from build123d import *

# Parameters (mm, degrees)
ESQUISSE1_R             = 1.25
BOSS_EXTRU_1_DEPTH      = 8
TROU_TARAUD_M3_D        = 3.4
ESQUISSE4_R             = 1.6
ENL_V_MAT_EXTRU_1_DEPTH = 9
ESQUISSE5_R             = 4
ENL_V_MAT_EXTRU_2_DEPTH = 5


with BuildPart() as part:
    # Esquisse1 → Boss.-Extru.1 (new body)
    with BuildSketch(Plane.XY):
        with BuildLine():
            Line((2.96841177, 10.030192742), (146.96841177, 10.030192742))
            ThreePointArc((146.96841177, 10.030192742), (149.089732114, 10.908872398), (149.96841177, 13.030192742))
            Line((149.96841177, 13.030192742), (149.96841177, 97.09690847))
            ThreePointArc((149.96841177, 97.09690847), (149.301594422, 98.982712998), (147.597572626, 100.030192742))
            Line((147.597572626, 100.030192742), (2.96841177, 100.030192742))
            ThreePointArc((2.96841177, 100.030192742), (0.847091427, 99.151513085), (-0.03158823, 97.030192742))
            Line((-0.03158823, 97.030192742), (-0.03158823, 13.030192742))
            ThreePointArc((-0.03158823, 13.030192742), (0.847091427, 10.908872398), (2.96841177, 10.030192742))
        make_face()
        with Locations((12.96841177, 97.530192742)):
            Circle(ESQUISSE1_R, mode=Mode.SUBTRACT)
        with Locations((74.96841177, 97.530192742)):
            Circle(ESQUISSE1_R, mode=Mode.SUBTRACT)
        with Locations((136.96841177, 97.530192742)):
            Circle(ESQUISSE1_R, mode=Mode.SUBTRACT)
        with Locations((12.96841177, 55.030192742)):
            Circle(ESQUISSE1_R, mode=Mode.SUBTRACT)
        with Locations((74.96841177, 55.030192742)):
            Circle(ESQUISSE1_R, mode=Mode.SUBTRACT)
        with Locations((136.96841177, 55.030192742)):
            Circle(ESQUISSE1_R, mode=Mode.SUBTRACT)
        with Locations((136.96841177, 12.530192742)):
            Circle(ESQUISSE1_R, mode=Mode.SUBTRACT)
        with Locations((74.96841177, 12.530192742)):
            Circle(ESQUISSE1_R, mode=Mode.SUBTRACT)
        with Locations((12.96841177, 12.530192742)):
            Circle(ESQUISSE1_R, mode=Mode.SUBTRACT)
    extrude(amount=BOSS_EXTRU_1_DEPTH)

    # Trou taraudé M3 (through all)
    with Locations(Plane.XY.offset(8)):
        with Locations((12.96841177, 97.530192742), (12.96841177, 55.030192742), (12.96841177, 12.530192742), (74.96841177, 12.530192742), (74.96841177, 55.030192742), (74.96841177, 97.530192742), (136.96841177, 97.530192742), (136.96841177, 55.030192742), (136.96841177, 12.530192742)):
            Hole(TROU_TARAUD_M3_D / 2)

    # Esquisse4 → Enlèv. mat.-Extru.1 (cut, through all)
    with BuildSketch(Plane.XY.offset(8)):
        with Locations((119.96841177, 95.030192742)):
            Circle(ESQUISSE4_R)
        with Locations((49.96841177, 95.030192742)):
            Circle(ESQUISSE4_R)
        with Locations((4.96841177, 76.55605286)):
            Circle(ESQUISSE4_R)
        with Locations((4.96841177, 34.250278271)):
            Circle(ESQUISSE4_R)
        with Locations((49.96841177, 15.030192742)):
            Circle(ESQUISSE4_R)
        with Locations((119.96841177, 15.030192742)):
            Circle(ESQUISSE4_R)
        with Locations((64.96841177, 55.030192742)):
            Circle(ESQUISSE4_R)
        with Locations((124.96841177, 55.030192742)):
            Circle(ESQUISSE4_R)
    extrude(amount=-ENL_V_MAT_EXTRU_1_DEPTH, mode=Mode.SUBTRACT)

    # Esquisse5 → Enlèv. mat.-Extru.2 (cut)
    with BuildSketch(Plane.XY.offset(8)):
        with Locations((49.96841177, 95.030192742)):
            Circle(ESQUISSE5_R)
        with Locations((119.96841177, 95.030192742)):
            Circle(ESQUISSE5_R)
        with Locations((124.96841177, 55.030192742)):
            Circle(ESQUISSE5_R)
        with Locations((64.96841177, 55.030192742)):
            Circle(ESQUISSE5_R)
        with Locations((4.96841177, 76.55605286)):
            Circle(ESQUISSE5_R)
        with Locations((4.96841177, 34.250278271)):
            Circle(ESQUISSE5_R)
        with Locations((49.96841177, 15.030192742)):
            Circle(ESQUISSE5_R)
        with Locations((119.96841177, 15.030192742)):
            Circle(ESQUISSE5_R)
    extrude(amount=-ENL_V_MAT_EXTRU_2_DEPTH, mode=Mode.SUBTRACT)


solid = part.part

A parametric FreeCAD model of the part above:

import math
import FreeCAD as App
import Part
import Sketcher
from FreeCAD import Vector
Q = App.Units.Quantity

doc = App.newDocument("Part")
body = doc.addObject("PartDesign::Body", "Body")

# Sketch on XY plane
sketch1 = doc.addObject("Sketcher::SketchObject", "Sketch")
body.addObject(sketch1)
sketch1.AttachmentSupport = (doc.XY_Plane, [""])
sketch1.MapMode = "FlatFace"
sketch1.addGeometry([
    Part.LineSegment(Vector(3, 10, 0), Vector(147, 10, 0)),  # 0
    Part.ArcOfCircle(Part.Circle(Vector(147, 13, 0), Vector(0, 0, 1), 3), math.radians(-90), math.radians(0)),  # 1
    Part.LineSegment(Vector(150, 13, 0), Vector(150, 97.1, 0)),  # 2
    Part.ArcOfCircle(Part.Circle(Vector(147, 97.1, 0), Vector(0, 0, 1), 3), math.radians(0), math.radians(78)),  # 3
    Part.LineSegment(Vector(147.6, 100, 0), Vector(3, 100, 0)),  # 4
    Part.ArcOfCircle(Part.Circle(Vector(3, 97, 0), Vector(0, 0, 1), 3), math.radians(90), math.radians(180)),  # 5
    Part.LineSegment(Vector(0, 97, 0), Vector(0, 13, 0)),  # 6
    Part.ArcOfCircle(Part.Circle(Vector(3, 13, 0), Vector(0, 0, 1), 3), math.radians(180), math.radians(270)),  # 7
    Part.Circle(Vector(13, 12.5, 0), Vector(0, 0, 1), 1.2),  # 8
    Part.Circle(Vector(13, 55, 0), Vector(0, 0, 1), 1.2),  # 9
    Part.Circle(Vector(75, 12.5, 0), Vector(0, 0, 1), 1.2),  # 10
    Part.Circle(Vector(137, 12.5, 0), Vector(0, 0, 1), 1.2),  # 11
    Part.Circle(Vector(75, 55, 0), Vector(0, 0, 1), 1.2),  # 12
    Part.Circle(Vector(137, 55, 0), Vector(0, 0, 1), 1.2),  # 13
    Part.Circle(Vector(13, 97.5, 0), Vector(0, 0, 1), 1.2),  # 14
    Part.Circle(Vector(75, 97.5, 0), Vector(0, 0, 1), 1.2),  # 15
    Part.Circle(Vector(137, 97.5, 0), Vector(0, 0, 1), 1.2),  # 16
], False)
sketch1.addConstraint([
    Sketcher.Constraint("Tangent", 0, 2, 1, 1),
    Sketcher.Constraint("Tangent", 1, 2, 2, 1),
    Sketcher.Constraint("Tangent", 2, 2, 3, 1),
    Sketcher.Constraint("Coincident", 3, 2, 4, 1),
    Sketcher.Constraint("Tangent", 4, 2, 5, 1),
    Sketcher.Constraint("Tangent", 5, 2, 6, 1),
    Sketcher.Constraint("Tangent", 6, 2, 7, 1),
    Sketcher.Constraint("Tangent", 7, 2, 0, 1),
    Sketcher.Constraint("Horizontal", 0),
    Sketcher.Constraint("Vertical", 2),
    Sketcher.Constraint("Horizontal", 4),
    Sketcher.Constraint("Vertical", 6),
    Sketcher.Constraint("Equal", 1, 3),
    Sketcher.Constraint("Equal", 3, 5),
    Sketcher.Constraint("Equal", 5, 7),
    Sketcher.Constraint("Equal", 8, 9),
    Sketcher.Constraint("Equal", 9, 10),
    Sketcher.Constraint("Equal", 10, 11),
    Sketcher.Constraint("Equal", 11, 12),
    Sketcher.Constraint("Equal", 12, 13),
    Sketcher.Constraint("Equal", 13, 14),
    Sketcher.Constraint("Equal", 14, 15),
    Sketcher.Constraint("Equal", 15, 16),
    Sketcher.Constraint("Horizontal", 8, 3, 10, 3),
    Sketcher.Constraint("Horizontal", 10, 3, 11, 3),
    Sketcher.Constraint("Horizontal", 9, 3, 12, 3),
    Sketcher.Constraint("Horizontal", 12, 3, 13, 3),
    Sketcher.Constraint("Horizontal", 14, 3, 15, 3),
    Sketcher.Constraint("Horizontal", 15, 3, 16, 3),
    Sketcher.Constraint("Vertical", 8, 3, 9, 3),
    Sketcher.Constraint("Vertical", 10, 3, 12, 3),
    Sketcher.Constraint("Vertical", 11, 3, 13, 3),
    Sketcher.Constraint("Vertical", 9, 3, 14, 3),
    Sketcher.Constraint("Vertical", 12, 3, 15, 3),
    Sketcher.Constraint("Vertical", 13, 3, 16, 3),
    Sketcher.Constraint("Radius", 1, Q("3 mm")),
    Sketcher.Constraint("Diameter", 8, Q("2.5 mm")),
    Sketcher.Constraint("DistanceX", 0, 1, 0, 2, Q("144 mm")),
    Sketcher.Constraint("DistanceY", 6, 2, 6, 1, Q("84 mm")),
    Sketcher.Constraint("DistanceX", 7, 3, 8, 3, Q("10 mm")),
    Sketcher.Constraint("DistanceY", 9, 3, 5, 3, Q("42 mm")),
    Sketcher.Constraint("DistanceX", 8, 3, 10, 3, Q("62 mm")),
    Sketcher.Constraint("DistanceX", 11, 3, 1, 3, Q("10 mm")),
    Sketcher.Constraint("DistanceY", 8, 3, 14, 3, Q("85 mm")),
    Sketcher.Constraint("DistanceY", 8, 3, 7, 3, Q("0.5 mm")),
    Sketcher.Constraint("DistanceX", 4, 2, 4, 1, Q("144.629161 mm")),
    Sketcher.Constraint("DistanceX", -1, 1, 1, 3, Q("146.968412 mm")),
    Sketcher.Constraint("DistanceY", -1, 1, 3, 3, Q("97.096908 mm")),
])
pad1 = doc.addObject("PartDesign::Pad", "Pad")
body.addObject(pad1)
pad1.Profile = sketch1
pad1.Length = 8

# Sketch on XY plane
sketch2 = doc.addObject("Sketcher::SketchObject", "Sketch001")
body.addObject(sketch2)
sketch2.AttachmentSupport = (doc.XY_Plane, [""])
sketch2.MapMode = "FlatFace"
sketch2.AttachmentOffset = App.Placement(Vector(0, 0, 8), App.Rotation())
sketch2.addGeometry([
    Part.Circle(Vector(13, 97.5, 0), Vector(0, 0, 1), 1.7),  # 0
    Part.Circle(Vector(13, 55, 0), Vector(0, 0, 1), 1.7),  # 1
    Part.Circle(Vector(13, 12.5, 0), Vector(0, 0, 1), 1.7),  # 2
    Part.Circle(Vector(75, 12.5, 0), Vector(0, 0, 1), 1.7),  # 3
    Part.Circle(Vector(75, 55, 0), Vector(0, 0, 1), 1.7),  # 4
    Part.Circle(Vector(75, 97.5, 0), Vector(0, 0, 1), 1.7),  # 5
    Part.Circle(Vector(137, 97.5, 0), Vector(0, 0, 1), 1.7),  # 6
    Part.Circle(Vector(137, 55, 0), Vector(0, 0, 1), 1.7),  # 7
    Part.Circle(Vector(137, 12.5, 0), Vector(0, 0, 1), 1.7),  # 8
], False)
sketch2.addConstraint([
    Sketcher.Constraint("Equal", 0, 1),
    Sketcher.Constraint("Equal", 1, 2),
    Sketcher.Constraint("Equal", 2, 3),
    Sketcher.Constraint("Equal", 3, 4),
    Sketcher.Constraint("Equal", 4, 5),
    Sketcher.Constraint("Equal", 5, 6),
    Sketcher.Constraint("Equal", 6, 7),
    Sketcher.Constraint("Equal", 7, 8),
    Sketcher.Constraint("Horizontal", 2, 3, 3, 3),
    Sketcher.Constraint("Horizontal", 1, 3, 4, 3),
    Sketcher.Constraint("Horizontal", 0, 3, 5, 3),
    Sketcher.Constraint("Horizontal", 5, 3, 6, 3),
    Sketcher.Constraint("Horizontal", 4, 3, 7, 3),
    Sketcher.Constraint("Horizontal", 3, 3, 8, 3),
    Sketcher.Constraint("Vertical", 0, 3, 1, 3),
    Sketcher.Constraint("Vertical", 1, 3, 2, 3),
    Sketcher.Constraint("Vertical", 3, 3, 4, 3),
    Sketcher.Constraint("Vertical", 4, 3, 5, 3),
    Sketcher.Constraint("Vertical", 6, 3, 7, 3),
    Sketcher.Constraint("Vertical", 7, 3, 8, 3),
    Sketcher.Constraint("Diameter", 0, Q("3.4 mm")),
    Sketcher.Constraint("DistanceY", 2, 3, 0, 3, Q("85 mm")),
    Sketcher.Constraint("DistanceX", 2, 3, 3, 3, Q("62 mm")),
    Sketcher.Constraint("DistanceX", 5, 3, 6, 3, Q("62 mm")),
    Sketcher.Constraint("DistanceY", 1, 3, 0, 3, Q("42.5 mm")),
    Sketcher.Constraint("DistanceX", -1, 1, 0, 3, Q("12.968412 mm")),
    Sketcher.Constraint("DistanceY", -1, 1, 0, 3, Q("97.530193 mm")),
])
doc.recompute()
hole = doc.addObject("PartDesign::Hole", "Hole")
body.addObject(hole)
hole.Profile = sketch2
hole.ThreadType = "None"
hole.Diameter = 3.4
hole.DepthType = "ThroughAll"

# Sketch on XY plane
sketch3 = doc.addObject("Sketcher::SketchObject", "Sketch002")
body.addObject(sketch3)
sketch3.AttachmentSupport = (doc.XY_Plane, [""])
sketch3.MapMode = "FlatFace"
sketch3.AttachmentOffset = App.Placement(Vector(0, 0, 8), App.Rotation())
sketch3.addGeometry([
    Part.Circle(Vector(120, 95, 0), Vector(0, 0, 1), 1.6),  # 0
    Part.Circle(Vector(50, 95, 0), Vector(0, 0, 1), 1.6),  # 1
    Part.Circle(Vector(5, 76.6, 0), Vector(0, 0, 1), 1.6),  # 2
    Part.Circle(Vector(5, 34.3, 0), Vector(0, 0, 1), 1.6),  # 3
    Part.Circle(Vector(50, 15, 0), Vector(0, 0, 1), 1.6),  # 4
    Part.Circle(Vector(120, 15, 0), Vector(0, 0, 1), 1.6),  # 5
    Part.Circle(Vector(65, 55, 0), Vector(0, 0, 1), 1.6),  # 6
    Part.Circle(Vector(125, 55, 0), Vector(0, 0, 1), 1.6),  # 7
], False)
sketch3.addConstraint([
    Sketcher.Constraint("Equal", 0, 1),
    Sketcher.Constraint("Equal", 1, 2),
    Sketcher.Constraint("Equal", 2, 3),
    Sketcher.Constraint("Equal", 3, 4),
    Sketcher.Constraint("Equal", 4, 5),
    Sketcher.Constraint("Equal", 5, 6),
    Sketcher.Constraint("Equal", 6, 7),
    Sketcher.Constraint("Horizontal", 0, 3, 1, 3),
    Sketcher.Constraint("Horizontal", 4, 3, 5, 3),
    Sketcher.Constraint("Horizontal", 6, 3, 7, 3),
    Sketcher.Constraint("Vertical", 2, 3, 3, 3),
    Sketcher.Constraint("Vertical", 1, 3, 4, 3),
    Sketcher.Constraint("Vertical", 0, 3, 5, 3),
    Sketcher.Constraint("Diameter", 0, Q("3.2 mm")),
    Sketcher.Constraint("DistanceX", 1, 3, 0, 3, Q("70 mm")),
    Sketcher.Constraint("DistanceX", 2, 3, 1, 3, Q("45 mm")),
    Sketcher.Constraint("DistanceY", 4, 3, 1, 3, Q("80 mm")),
    Sketcher.Constraint("DistanceX", 1, 3, 6, 3, Q("15 mm")),
    Sketcher.Constraint("DistanceY", 6, 3, 1, 3, Q("40 mm")),
    Sketcher.Constraint("DistanceX", 0, 3, 7, 3, Q("5 mm")),
    Sketcher.Constraint("DistanceX", -1, 1, 0, 3, Q("119.968412 mm")),
    Sketcher.Constraint("DistanceY", -1, 1, 3, 3, Q("34.250278 mm")),
    Sketcher.Constraint("DistanceY", 2, 3, 1, 3, Q("18.47414 mm")),
    Sketcher.Constraint("DistanceY", -1, 1, 0, 3, Q("95.030193 mm")),
])
pocket1 = doc.addObject("PartDesign::Pocket", "Pocket")
body.addObject(pocket1)
pocket1.Profile = sketch3
pocket1.Type = "ThroughAll"

# Sketch on XY plane
sketch4 = doc.addObject("Sketcher::SketchObject", "Sketch003")
body.addObject(sketch4)
sketch4.AttachmentSupport = (doc.XY_Plane, [""])
sketch4.MapMode = "FlatFace"
sketch4.AttachmentOffset = App.Placement(Vector(0, 0, 8), App.Rotation())
sketch4.addGeometry([
    Part.Circle(Vector(50, 95, 0), Vector(0, 0, 1), 4),  # 0
    Part.Circle(Vector(120, 95, 0), Vector(0, 0, 1), 4),  # 1
    Part.Circle(Vector(125, 55, 0), Vector(0, 0, 1), 4),  # 2
    Part.Circle(Vector(65, 55, 0), Vector(0, 0, 1), 4),  # 3
    Part.Circle(Vector(5, 76.6, 0), Vector(0, 0, 1), 4),  # 4
    Part.Circle(Vector(5, 34.3, 0), Vector(0, 0, 1), 4),  # 5
    Part.Circle(Vector(50, 15, 0), Vector(0, 0, 1), 4),  # 6
    Part.Circle(Vector(120, 15, 0), Vector(0, 0, 1), 4),  # 7
], False)
sketch4.addConstraint([
    Sketcher.Constraint("Equal", 0, 1),
    Sketcher.Constraint("Equal", 1, 2),
    Sketcher.Constraint("Equal", 2, 3),
    Sketcher.Constraint("Equal", 3, 4),
    Sketcher.Constraint("Equal", 4, 5),
    Sketcher.Constraint("Equal", 5, 6),
    Sketcher.Constraint("Equal", 6, 7),
    Sketcher.Constraint("Horizontal", 0, 3, 1, 3),
    Sketcher.Constraint("Horizontal", 2, 3, 3, 3),
    Sketcher.Constraint("Horizontal", 6, 3, 7, 3),
    Sketcher.Constraint("Vertical", 4, 3, 5, 3),
    Sketcher.Constraint("Vertical", 0, 3, 6, 3),
    Sketcher.Constraint("Vertical", 1, 3, 7, 3),
    Sketcher.Constraint("Diameter", 0, Q("8 mm")),
    Sketcher.Constraint("DistanceX", 0, 3, 1, 3, Q("70 mm")),
    Sketcher.Constraint("DistanceX", 1, 3, 2, 3, Q("5 mm")),
    Sketcher.Constraint("DistanceY", 2, 3, 1, 3, Q("40 mm")),
    Sketcher.Constraint("DistanceX", 0, 3, 3, 3, Q("15 mm")),
    Sketcher.Constraint("DistanceX", 4, 3, 0, 3, Q("45 mm")),
    Sketcher.Constraint("DistanceY", 6, 3, 3, 3, Q("40 mm")),
    Sketcher.Constraint("DistanceX", -1, 1, 0, 3, Q("49.968412 mm")),
    Sketcher.Constraint("DistanceY", -1, 1, 5, 3, Q("34.250278 mm")),
    Sketcher.Constraint("DistanceY", 4, 3, 0, 3, Q("18.47414 mm")),
    Sketcher.Constraint("DistanceY", -1, 1, 0, 3, Q("95.030193 mm")),
])
pocket2 = doc.addObject("PartDesign::Pocket", "Pocket001")
body.addObject(pocket2)
pocket2.Profile = sketch4
pocket2.Length = 5

doc.recompute()
